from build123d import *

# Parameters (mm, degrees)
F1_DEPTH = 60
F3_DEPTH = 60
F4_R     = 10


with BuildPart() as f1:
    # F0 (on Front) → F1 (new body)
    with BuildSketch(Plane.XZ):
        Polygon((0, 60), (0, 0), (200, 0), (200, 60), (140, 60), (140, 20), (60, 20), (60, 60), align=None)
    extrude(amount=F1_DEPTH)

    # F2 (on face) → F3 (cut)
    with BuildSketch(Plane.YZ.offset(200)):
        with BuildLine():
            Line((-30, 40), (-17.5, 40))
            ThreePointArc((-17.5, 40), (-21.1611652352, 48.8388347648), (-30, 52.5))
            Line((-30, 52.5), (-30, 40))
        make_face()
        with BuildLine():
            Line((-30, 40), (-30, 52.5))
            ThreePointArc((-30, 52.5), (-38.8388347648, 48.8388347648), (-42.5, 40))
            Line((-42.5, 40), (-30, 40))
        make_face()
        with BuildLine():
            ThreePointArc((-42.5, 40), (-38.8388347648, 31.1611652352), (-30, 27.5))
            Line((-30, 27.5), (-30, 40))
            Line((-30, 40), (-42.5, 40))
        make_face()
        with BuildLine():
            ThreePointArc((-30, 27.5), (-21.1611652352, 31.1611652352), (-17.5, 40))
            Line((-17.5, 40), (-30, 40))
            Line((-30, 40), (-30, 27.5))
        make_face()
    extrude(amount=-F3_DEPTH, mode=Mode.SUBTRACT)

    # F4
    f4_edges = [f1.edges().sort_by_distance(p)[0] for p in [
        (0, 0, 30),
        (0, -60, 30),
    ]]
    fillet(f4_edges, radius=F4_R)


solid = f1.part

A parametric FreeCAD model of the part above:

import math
import FreeCAD as App
import Part
import Sketcher


def edges_at(feature, points):
    """Names of the edges that pass closest to the given points."""
    edges = feature.Shape.Edges
    near = lambda p: min(range(len(edges)), key=lambda i: edges[i].distToShape(Part.Vertex(*p))[0])
    return sorted({f"Edge{near(p) + 1}" for p in points})


def add_polygon(sketch, points):
    """Adds a closed chain of lines whose ends are joined by coincident constraints."""
    first, n = sketch.GeometryCount, len(points)
    for a, b in zip(points, points[1:] + points[:1]):
        sketch.addGeometry(Part.LineSegment(App.Vector(*a, 0), App.Vector(*b, 0)), False)
    for i in range(n):
        sketch.addConstraint(Sketcher.Constraint("Coincident", first + i, 2, first + (i + 1) % n, 1))

doc = App.newDocument("Part")
params = doc.addObject("Spreadsheet::Sheet", "Params")
for row, (alias, value) in enumerate([
    ("sketch1_width", "200 mm"),
    ("sketch1_width2", "60 mm"),
    ("sketch1_height", "40 mm"),
    ("pad1_length", "60 mm"),
    ("sketch2_radius", "12.5 mm"),
    ("pocket1_length", "60 mm"),
    ("fillet_radius", "10 mm"),
], start=1):
    params.set(f"A{row}", alias)
    params.set(f"B{row}", "=" + value)
    params.setAlias(f"B{row}", alias)

body = doc.addObject("PartDesign::Body", "Body")

sketch1 = body.newObject("Sketcher::SketchObject", "Sketch")
sketch1.AttachmentSupport = (doc.getObject("XZ_Plane"), [""])
sketch1.MapMode = "FlatFace"
add_polygon(sketch1, [(0, 60), (0, 0), (200, 0), (200, 60), (140, 60), (140, 20), (60, 20), (60, 60)])
sketch1.addConstraint(Sketcher.Constraint("Vertical", 0))
sketch1.addConstraint(Sketcher.Constraint("Horizontal", 1))
sketch1.addConstraint(Sketcher.Constraint("Vertical", 2))
sketch1.addConstraint(Sketcher.Constraint("Horizontal", 3))
sketch1.addConstraint(Sketcher.Constraint("Vertical", 4))
sketch1.addConstraint(Sketcher.Constraint("Horizontal", 5))
sketch1.addConstraint(Sketcher.Constraint("Vertical", 6))
sketch1.addConstraint(Sketcher.Constraint("Horizontal", 7))
sketch1.addConstraint(Sketcher.Constraint("Coincident", 0, 2, -1, 1))
sketch1.addConstraint(Sketcher.Constraint("Horizontal", 3, 2, 6, 2))
sketch1.addConstraint(Sketcher.Constraint("Equal", 3, 7))
sketch1.addConstraint(Sketcher.Constraint("Equal", 7, 0))
sketch1.addConstraint(Sketcher.Constraint("DistanceX", 1, 1, 1, 2, 200.0))
sketch1.addConstraint(Sketcher.Constraint("DistanceX", 3, 2, 3, 1, 60.0))
sketch1.addConstraint(Sketcher.Constraint("DistanceY", 4, 2, 4, 1, 40.0))
sketch1.setExpression("Constraints[20]", "Params.sketch1_width")
sketch1.setExpression("Constraints[21]", "Params.sketch1_width2")
sketch1.setExpression("Constraints[22]", "Params.sketch1_height")
pad1 = body.newObject("PartDesign::Pad", "Pad")
pad1.Profile = sketch1
pad1.setExpression("Length", "Params.pad1_length")

sketch2 = body.newObject("Sketcher::SketchObject", "Sketch001")
sketch2.AttachmentSupport = (doc.getObject("YZ_Plane"), [""])
sketch2.MapMode = "FlatFace"
sketch2.AttachmentOffset = App.Placement(App.Vector(0, 0, 200), App.Rotation())
sketch2.addGeometry(Part.ArcOfCircle(Part.Circle(App.Vector(-30, 40, 0), App.Vector(0, 0, 1), 12), math.radians(0), math.radians(90)), False)
sketch2.addGeometry(Part.ArcOfCircle(Part.Circle(App.Vector(-30, 40, 0), App.Vector(0, 0, 1), 12), math.radians(90), math.radians(180)), False)
sketch2.addGeometry(Part.ArcOfCircle(Part.Circle(App.Vector(-30, 40, 0), App.Vector(0, 0, 1), 12), math.radians(180), math.radians(270)), False)
sketch2.addGeometry(Part.ArcOfCircle(Part.Circle(App.Vector(-30, 40, 0), App.Vector(0, 0, 1), 12), math.radians(-90), math.radians(0)), False)
sketch2.addConstraint(Sketcher.Constraint("Tangent", 0, 2, 1, 1))
sketch2.addConstraint(Sketcher.Constraint("Tangent", 1, 2, 2, 1))
sketch2.addConstraint(Sketcher.Constraint("Tangent", 2, 2, 3, 1))
sketch2.addConstraint(Sketcher.Constraint("Tangent", 3, 2, 0, 1))
sketch2.addConstraint(Sketcher.Constraint("Equal", 0, 1))
sketch2.addConstraint(Sketcher.Constraint("Horizontal", 3, 3, 1, 2))
sketch2.addConstraint(Sketcher.Constraint("Horizontal", 1, 2, 3, 2))
sketch2.addConstraint(Sketcher.Constraint("Vertical", 3, 3, 0, 2))
sketch2.addConstraint(Sketcher.Constraint("Vertical", 0, 2, 2, 2))
sketch2.addConstraint(Sketcher.Constraint("Radius", 0, 12.5))
sketch2.addConstraint(Sketcher.Constraint("DistanceX", 0, 3, -1, 1, 30.0))
sketch2.addConstraint(Sketcher.Constraint("DistanceY", -1, 1, 0, 3, 40.0))
sketch2.setExpression("Constraints[9]", "Params.sketch2_radius")
pocket1 = body.newObject("PartDesign::Pocket", "Pocket")
pocket1.Profile = sketch2
pocket1.setExpression("Length", "Params.pocket1_length")
doc.recompute()

fillet = body.newObject("PartDesign::Fillet", "Fillet")
fillet.Base = (pocket1, edges_at(pocket1, [(0, 0, 30), (0, -60, 30)]))
fillet.setExpression("Radius", "Params.fillet_radius")

doc.recompute()
